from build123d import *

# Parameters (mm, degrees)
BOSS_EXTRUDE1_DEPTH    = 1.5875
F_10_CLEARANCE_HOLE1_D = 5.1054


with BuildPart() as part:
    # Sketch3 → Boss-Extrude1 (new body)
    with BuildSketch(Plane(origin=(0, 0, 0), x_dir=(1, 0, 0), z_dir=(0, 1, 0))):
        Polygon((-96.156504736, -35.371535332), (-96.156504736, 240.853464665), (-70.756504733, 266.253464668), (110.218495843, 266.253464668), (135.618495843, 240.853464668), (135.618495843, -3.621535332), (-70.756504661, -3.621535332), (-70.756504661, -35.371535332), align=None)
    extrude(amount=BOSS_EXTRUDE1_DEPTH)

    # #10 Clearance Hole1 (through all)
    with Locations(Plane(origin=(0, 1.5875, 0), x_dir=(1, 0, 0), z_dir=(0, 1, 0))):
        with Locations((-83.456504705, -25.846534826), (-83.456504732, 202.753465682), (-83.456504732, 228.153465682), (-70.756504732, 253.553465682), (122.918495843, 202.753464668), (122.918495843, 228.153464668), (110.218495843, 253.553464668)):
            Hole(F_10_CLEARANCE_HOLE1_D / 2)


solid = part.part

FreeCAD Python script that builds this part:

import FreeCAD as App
import Part
import Sketcher
from FreeCAD import Vector
Q = App.Units.Quantity


def add_polygon(sketch, points):
    """Adds a closed chain of lines whose ends are joined by coincident constraints."""
    first, n = sketch.GeometryCount, len(points)
    for a, b in zip(points, points[1:] + points[:1]):
        sketch.addGeometry(Part.LineSegment(App.Vector(*a, 0), App.Vector(*b, 0)), False)
    for i in range(n):
        sketch.addConstraint(Sketcher.Constraint("Coincident", first + i, 2, first + (i + 1) % n, 1))

doc = App.newDocument("Part")
body = doc.addObject("PartDesign::Body", "Body")

# Sketch on XZ plane
sketch1 = body.newObject("Sketcher::SketchObject", "Sketch")
sketch1.AttachmentSupport = (doc.getObject("XZ_Plane"), [""])
sketch1.MapMode = "FlatFace"
add_polygon(sketch1, [(-96, -241), (-96, 35), (-71, 35), (-71, 4), (136, 4), (136, -241), (110, -266), (-71, -266)])  # lines 0-7
sketch1.addConstraint([
    Sketcher.Constraint("Vertical", 0),
    Sketcher.Constraint("Horizontal", 1),
    Sketcher.Constraint("Vertical", 2),
    Sketcher.Constraint("Horizontal", 3),
    Sketcher.Constraint("Vertical", 4),
    Sketcher.Constraint("Horizontal", 6),
    Sketcher.Constraint("Perpendicular", 5, 7),
    Sketcher.Constraint("Horizontal", 4, 2, 7, 2),
    Sketcher.Constraint("Vertical", 2, 2, 6, 2),
    Sketcher.Constraint("Equal", 5, 7),
    Sketcher.Constraint("DistanceX", 1, 1, 1, 2, Q("1 in")),
    Sketcher.Constraint("DistanceY", 2, 2, 2, 1, Q("1.25 in")),
    Sketcher.Constraint("DistanceX", 3, 1, 3, 2, Q("8.125 in")),
    Sketcher.Constraint("DistanceY", 0, 1, 0, 2, Q("10.875 in")),
    Sketcher.Constraint("DistanceX", 0, 2, -1, 1, Q("96.156505 mm")),
    Sketcher.Constraint("DistanceY", -1, 1, 0, 2, Q("35.371535 mm")),
])
pad1 = body.newObject("PartDesign::Pad", "Pad")
pad1.Profile = sketch1
pad1.Length = Q("0.0625 in")
pad1.Reversed = True

# Sketch on XZ plane
sketch2 = body.newObject("Sketcher::SketchObject", "Sketch001")
sketch2.AttachmentSupport = (doc.getObject("XZ_Plane"), [""])
sketch2.MapMode = "FlatFace"
sketch2.AttachmentOffset = App.Placement(Vector(0, 0, -0.0625 * 25.4), App.Rotation())
sketch2.addGeometry([
    Part.Circle(Vector(-83.5, 25.8, 0), Vector(0, 0, 1), 2.6),  # 0
    Part.Circle(Vector(-83.5, -202.8, 0), Vector(0, 0, 1), 2.6),  # 1
    Part.Circle(Vector(-83.5, -228.2, 0), Vector(0, 0, 1), 2.6),  # 2
    Part.Circle(Vector(-70.8, -253.6, 0), Vector(0, 0, 1), 2.6),  # 3
    Part.Circle(Vector(122.9, -202.8, 0), Vector(0, 0, 1), 2.6),  # 4
    Part.Circle(Vector(122.9, -228.2, 0), Vector(0, 0, 1), 2.6),  # 5
    Part.Circle(Vector(110.2, -253.6, 0), Vector(0, 0, 1), 2.6),  # 6
], False)
sketch2.addConstraint([
    Sketcher.Constraint("Equal", 0, 1),
    Sketcher.Constraint("Equal", 1, 2),
    Sketcher.Constraint("Equal", 2, 3),
    Sketcher.Constraint("Equal", 3, 4),
    Sketcher.Constraint("Equal", 4, 5),
    Sketcher.Constraint("Equal", 5, 6),
    Sketcher.Constraint("Horizontal", 1, 3, 4, 3),
    Sketcher.Constraint("Horizontal", 2, 3, 5, 3),
    Sketcher.Constraint("Horizontal", 3, 3, 6, 3),
    Sketcher.Constraint("Vertical", 0, 3, 1, 3),
    Sketcher.Constraint("Vertical", 1, 3, 2, 3),
    Sketcher.Constraint("Vertical", 4, 3, 5, 3),
    Sketcher.Constraint("Diameter", 0, Q("0.201 in")),
    Sketcher.Constraint("DistanceY", 1, 3, 0, 3, Q("9 in")),
    Sketcher.Constraint("DistanceY", 2, 3, 1, 3, Q("1 in")),
    Sketcher.Constraint("DistanceY", 3, 3, 2, 3, Q("1 in")),
    Sketcher.Constraint("DistanceX", 2, 3, 3, 3, Q("0.5 in")),
    Sketcher.Constraint("DistanceX", 6, 3, 5, 3, Q("0.5 in")),
    Sketcher.Constraint("DistanceX", 3, 3, 4, 3, Q("7.625 in")),
    Sketcher.Constraint("DistanceX", 0, 3, -1, 1, Q("83.456505 mm")),
    Sketcher.Constraint("DistanceY", -1, 1, 0, 3, Q("25.846535 mm")),
])
doc.recompute()
hole = body.newObject("PartDesign::Hole", "Hole")
hole.Profile = sketch2
hole.ThreadType = "None"
hole.Diameter = Q("0.201 in")
hole.DepthType = "ThroughAll"
hole.Reversed = True

doc.recompute()
